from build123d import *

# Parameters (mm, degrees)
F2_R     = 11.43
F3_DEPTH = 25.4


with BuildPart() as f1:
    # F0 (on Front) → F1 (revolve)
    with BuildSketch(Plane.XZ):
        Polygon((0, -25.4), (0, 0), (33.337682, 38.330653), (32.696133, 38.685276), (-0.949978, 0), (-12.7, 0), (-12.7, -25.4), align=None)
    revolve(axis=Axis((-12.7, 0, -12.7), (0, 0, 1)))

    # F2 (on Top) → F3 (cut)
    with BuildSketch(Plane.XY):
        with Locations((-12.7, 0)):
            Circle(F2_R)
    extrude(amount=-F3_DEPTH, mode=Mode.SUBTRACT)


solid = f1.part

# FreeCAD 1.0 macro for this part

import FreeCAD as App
import Part
import Sketcher
Q = App.Units.Quantity


def add_polygon(sketch, points):
    """Adds a closed chain of lines whose ends are joined by coincident constraints."""
    first, n = sketch.GeometryCount, len(points)
    for a, b in zip(points, points[1:] + points[:1]):
        sketch.addGeometry(Part.LineSegment(App.Vector(*a, 0), App.Vector(*b, 0)), False)
    for i in range(n):
        sketch.addConstraint(Sketcher.Constraint("Coincident", first + i, 2, first + (i + 1) % n, 1))

doc = App.newDocument("Part")
params = doc.addObject("Spreadsheet::Sheet", "Params")
for row, (alias, value) in enumerate([
    ("sketch1_height", "1 in"),
    ("sketch1_length", "2 in"),
    ("sketch1_width", "0.5 in"),
    ("revolution_angle", "360 deg"),
    ("sketch2_diameter", "0.9 in"),
    ("pocket1_length", "1 in"),
], start=1):
    params.set(f"A{row}", alias)
    params.set(f"B{row}", "=" + value)
    params.setAlias(f"B{row}", alias)

body = doc.addObject("PartDesign::Body", "Body")

sketch1 = body.newObject("Sketcher::SketchObject", "Sketch")
sketch1.AttachmentSupport = (doc.getObject("XZ_Plane"), [""])
sketch1.MapMode = "FlatFace"
add_polygon(sketch1, [(0, -25.4), (0, 0), (33.3, 38.3), (32.7, 38.7), (-0.9, 0), (-12.7, 0), (-12.7, -25.4)])
sketch1.addGeometry(Part.LineSegment(App.Vector(-12.7, -25.4, 0), App.Vector(-12.7, 38.7, 0)), True)
sketch1.addConstraint(Sketcher.Constraint("Vertical", 0))
sketch1.addConstraint(Sketcher.Constraint("Horizontal", 4))
sketch1.addConstraint(Sketcher.Constraint("Vertical", 5))
sketch1.addConstraint(Sketcher.Constraint("Horizontal", 6))
sketch1.addConstraint(Sketcher.Constraint("Vertical", 7))
sketch1.addConstraint(Sketcher.Constraint("Coincident", 0, 2, -1, 1))
sketch1.addConstraint(Sketcher.Constraint("Coincident", 7, 1, 5, 2))
sketch1.addConstraint(Sketcher.Constraint("PointOnObject", 3, 2, -1))
sketch1.addConstraint(Sketcher.Constraint("Parallel", 1, 3))
sketch1.addConstraint(Sketcher.Constraint("Horizontal", 2, 2, 7, 2))
sketch1.addConstraint(Sketcher.Constraint("DistanceY", 0, 1, 0, 2, Q("1 in")))
sketch1.addConstraint(Sketcher.Constraint("Distance", 1, Q("2 in")))
sketch1.addConstraint(Sketcher.Constraint("DistanceX", 6, 1, 6, 2, Q("0.5 in")))
sketch1.addConstraint(Sketcher.Constraint("DistanceX", 4, 2, 4, 1, 11.750022))
sketch1.addConstraint(Sketcher.Constraint("DistanceY", 7, 1, 7, 2, 64.085276))
sketch1.addConstraint(Sketcher.Constraint("DistanceX", 2, 2, 1, 2, 0.641549))
sketch1.setExpression("Constraints[17]", "Params.sketch1_height")
sketch1.setExpression("Constraints[18]", "Params.sketch1_length")
sketch1.setExpression("Constraints[19]", "Params.sketch1_width")
revolution = body.newObject("PartDesign::Revolution", "Revolution")
revolution.Profile = sketch1
revolution.ReferenceAxis = (sketch1, ["Axis0"])
revolution.setExpression("Angle", "Params.revolution_angle")

sketch2 = body.newObject("Sketcher::SketchObject", "Sketch001")
sketch2.AttachmentSupport = (doc.getObject("XY_Plane"), [""])
sketch2.MapMode = "FlatFace"
sketch2.addGeometry(Part.Circle(App.Vector(-13, 0, 0), App.Vector(0, 0, 1), 11), False)
sketch2.addConstraint(Sketcher.Constraint("PointOnObject", 0, 3, -1))
sketch2.addConstraint(Sketcher.Constraint("Diameter", 0, Q("0.9 in")))
sketch2.addConstraint(Sketcher.Constraint("DistanceX", 0, 3, -1, 1, Q("0.5 in")))
sketch2.setExpression("Constraints[1]", "Params.sketch2_diameter")
pocket1 = body.newObject("PartDesign::Pocket", "Pocket")
pocket1.Profile = sketch2
pocket1.setExpression("Length", "Params.pocket1_length")

doc.recompute()
